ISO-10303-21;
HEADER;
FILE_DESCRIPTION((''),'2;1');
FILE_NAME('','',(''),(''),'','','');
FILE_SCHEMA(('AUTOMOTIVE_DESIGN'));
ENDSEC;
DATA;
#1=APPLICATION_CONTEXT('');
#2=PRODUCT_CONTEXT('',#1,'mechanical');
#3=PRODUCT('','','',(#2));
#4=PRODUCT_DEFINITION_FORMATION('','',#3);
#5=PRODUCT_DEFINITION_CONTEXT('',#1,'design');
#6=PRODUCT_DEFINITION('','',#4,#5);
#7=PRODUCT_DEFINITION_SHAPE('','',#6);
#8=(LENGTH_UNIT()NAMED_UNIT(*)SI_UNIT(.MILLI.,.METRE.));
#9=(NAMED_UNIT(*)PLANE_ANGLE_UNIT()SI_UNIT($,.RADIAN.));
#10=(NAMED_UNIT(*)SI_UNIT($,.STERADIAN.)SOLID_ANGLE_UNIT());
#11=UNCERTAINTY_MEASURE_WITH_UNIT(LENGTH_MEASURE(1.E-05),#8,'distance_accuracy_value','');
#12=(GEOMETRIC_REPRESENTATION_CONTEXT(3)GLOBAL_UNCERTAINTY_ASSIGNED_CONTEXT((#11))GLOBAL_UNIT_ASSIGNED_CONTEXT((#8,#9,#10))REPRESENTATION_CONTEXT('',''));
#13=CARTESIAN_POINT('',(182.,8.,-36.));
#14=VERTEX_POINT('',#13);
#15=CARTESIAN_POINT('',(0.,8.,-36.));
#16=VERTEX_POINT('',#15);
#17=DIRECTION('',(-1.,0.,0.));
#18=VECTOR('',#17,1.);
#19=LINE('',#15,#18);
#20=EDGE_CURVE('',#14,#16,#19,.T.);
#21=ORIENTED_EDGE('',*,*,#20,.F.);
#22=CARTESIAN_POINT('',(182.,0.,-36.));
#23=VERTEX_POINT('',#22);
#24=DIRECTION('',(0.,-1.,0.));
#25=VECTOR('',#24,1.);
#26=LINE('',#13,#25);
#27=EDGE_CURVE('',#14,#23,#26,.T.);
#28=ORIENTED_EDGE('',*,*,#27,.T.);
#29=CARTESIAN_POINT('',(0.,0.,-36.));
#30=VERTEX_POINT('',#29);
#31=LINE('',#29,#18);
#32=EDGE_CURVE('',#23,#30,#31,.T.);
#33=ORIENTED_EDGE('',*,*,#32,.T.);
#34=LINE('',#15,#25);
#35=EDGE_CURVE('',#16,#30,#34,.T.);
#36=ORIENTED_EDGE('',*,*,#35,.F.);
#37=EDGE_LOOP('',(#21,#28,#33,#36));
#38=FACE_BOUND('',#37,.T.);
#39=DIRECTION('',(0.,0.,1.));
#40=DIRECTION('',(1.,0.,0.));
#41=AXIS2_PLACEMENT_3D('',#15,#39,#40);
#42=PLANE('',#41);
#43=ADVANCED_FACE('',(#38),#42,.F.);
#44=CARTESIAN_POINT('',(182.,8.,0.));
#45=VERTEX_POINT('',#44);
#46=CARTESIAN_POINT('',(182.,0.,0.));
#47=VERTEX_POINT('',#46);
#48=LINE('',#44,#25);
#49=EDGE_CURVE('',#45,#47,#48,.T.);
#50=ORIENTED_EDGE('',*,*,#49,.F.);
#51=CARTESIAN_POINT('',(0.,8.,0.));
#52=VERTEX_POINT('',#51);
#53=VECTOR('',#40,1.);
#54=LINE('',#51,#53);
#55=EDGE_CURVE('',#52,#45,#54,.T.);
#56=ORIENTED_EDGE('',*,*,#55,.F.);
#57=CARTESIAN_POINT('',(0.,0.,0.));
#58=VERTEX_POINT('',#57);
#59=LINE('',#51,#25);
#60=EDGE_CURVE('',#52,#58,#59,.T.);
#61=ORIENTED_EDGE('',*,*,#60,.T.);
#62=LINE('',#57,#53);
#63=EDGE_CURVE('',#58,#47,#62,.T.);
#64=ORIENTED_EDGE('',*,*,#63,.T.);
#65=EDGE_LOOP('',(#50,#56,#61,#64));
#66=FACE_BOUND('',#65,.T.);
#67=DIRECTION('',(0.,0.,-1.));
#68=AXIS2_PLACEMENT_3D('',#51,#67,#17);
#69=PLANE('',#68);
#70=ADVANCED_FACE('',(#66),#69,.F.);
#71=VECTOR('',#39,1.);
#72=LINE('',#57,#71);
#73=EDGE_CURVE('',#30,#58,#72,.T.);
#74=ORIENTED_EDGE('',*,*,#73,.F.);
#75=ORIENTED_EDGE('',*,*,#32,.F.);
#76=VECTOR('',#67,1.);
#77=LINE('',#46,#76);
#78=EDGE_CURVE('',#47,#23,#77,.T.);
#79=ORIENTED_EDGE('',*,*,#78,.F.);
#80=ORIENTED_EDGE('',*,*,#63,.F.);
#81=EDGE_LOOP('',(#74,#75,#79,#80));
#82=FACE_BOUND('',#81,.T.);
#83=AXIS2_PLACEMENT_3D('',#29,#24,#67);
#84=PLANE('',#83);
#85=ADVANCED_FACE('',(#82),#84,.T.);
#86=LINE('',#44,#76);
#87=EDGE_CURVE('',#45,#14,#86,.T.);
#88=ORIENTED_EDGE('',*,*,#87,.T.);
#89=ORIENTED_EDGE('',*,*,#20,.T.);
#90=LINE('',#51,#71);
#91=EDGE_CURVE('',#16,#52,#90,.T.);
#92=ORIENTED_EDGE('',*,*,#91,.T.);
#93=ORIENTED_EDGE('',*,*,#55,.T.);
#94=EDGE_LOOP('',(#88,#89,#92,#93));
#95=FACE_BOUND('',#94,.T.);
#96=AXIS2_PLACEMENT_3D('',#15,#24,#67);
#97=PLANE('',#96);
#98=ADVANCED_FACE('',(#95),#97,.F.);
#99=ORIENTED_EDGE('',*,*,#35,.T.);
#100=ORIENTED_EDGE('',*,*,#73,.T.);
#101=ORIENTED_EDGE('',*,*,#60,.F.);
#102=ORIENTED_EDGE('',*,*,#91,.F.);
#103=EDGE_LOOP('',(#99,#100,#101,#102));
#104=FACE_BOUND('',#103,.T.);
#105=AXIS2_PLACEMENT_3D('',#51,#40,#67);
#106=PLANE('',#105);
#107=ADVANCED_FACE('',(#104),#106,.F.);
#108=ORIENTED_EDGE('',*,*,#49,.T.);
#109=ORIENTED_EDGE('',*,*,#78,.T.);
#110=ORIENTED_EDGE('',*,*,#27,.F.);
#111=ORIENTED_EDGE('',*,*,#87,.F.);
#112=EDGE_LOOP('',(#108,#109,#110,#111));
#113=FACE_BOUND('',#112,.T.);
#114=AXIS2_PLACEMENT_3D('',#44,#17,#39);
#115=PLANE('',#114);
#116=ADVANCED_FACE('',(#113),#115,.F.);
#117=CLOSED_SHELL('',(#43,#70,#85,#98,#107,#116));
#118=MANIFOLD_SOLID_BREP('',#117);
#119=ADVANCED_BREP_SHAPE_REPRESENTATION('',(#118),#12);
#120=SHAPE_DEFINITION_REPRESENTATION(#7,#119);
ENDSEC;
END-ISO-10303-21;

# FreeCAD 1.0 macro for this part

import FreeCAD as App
import Part
import Sketcher

V = App.Vector

doc = App.newDocument("Part")
body = doc.addObject("PartDesign::Body", "Body")

sketch1 = body.newObject("Sketcher::SketchObject", "Sketch")
sketch1.AttachmentSupport = (doc.getObject("XZ_Plane"), [""])
sketch1.MapMode = "FlatFace"
sketch1.addGeometry([
    Part.LineSegment(V(0, -36, 0), V(0, 0, 0)),
    Part.LineSegment(V(0, 0, 0), V(182, 0, 0)),
    Part.LineSegment(V(182, 0, 0), V(182, -36, 0)),
    Part.LineSegment(V(182, -36, 0), V(0, -36, 0)),
], False)
sketch1.addConstraint([
    Sketcher.Constraint("Coincident", 0, 2, 1, 1),
    Sketcher.Constraint("Coincident", 1, 2, 2, 1),
    Sketcher.Constraint("Coincident", 2, 2, 3, 1),
    Sketcher.Constraint("Coincident", 3, 2, 0, 1),
    Sketcher.Constraint("Vertical", 0),
    Sketcher.Constraint("Horizontal", 1),
    Sketcher.Constraint("Vertical", 2),
    Sketcher.Constraint("Horizontal", 3),
    Sketcher.Constraint("Coincident", 0, 2, -1, 1),
    Sketcher.Constraint("DistanceX", 1, 1, 1, 2, 182.0),
    Sketcher.Constraint("DistanceY", 0, 1, 0, 2, 36.0),
])
pad1 = body.newObject("PartDesign::Pad", "Pad")
pad1.Profile = sketch1
pad1.Length = 8
pad1.Reversed = True

doc.recompute()
